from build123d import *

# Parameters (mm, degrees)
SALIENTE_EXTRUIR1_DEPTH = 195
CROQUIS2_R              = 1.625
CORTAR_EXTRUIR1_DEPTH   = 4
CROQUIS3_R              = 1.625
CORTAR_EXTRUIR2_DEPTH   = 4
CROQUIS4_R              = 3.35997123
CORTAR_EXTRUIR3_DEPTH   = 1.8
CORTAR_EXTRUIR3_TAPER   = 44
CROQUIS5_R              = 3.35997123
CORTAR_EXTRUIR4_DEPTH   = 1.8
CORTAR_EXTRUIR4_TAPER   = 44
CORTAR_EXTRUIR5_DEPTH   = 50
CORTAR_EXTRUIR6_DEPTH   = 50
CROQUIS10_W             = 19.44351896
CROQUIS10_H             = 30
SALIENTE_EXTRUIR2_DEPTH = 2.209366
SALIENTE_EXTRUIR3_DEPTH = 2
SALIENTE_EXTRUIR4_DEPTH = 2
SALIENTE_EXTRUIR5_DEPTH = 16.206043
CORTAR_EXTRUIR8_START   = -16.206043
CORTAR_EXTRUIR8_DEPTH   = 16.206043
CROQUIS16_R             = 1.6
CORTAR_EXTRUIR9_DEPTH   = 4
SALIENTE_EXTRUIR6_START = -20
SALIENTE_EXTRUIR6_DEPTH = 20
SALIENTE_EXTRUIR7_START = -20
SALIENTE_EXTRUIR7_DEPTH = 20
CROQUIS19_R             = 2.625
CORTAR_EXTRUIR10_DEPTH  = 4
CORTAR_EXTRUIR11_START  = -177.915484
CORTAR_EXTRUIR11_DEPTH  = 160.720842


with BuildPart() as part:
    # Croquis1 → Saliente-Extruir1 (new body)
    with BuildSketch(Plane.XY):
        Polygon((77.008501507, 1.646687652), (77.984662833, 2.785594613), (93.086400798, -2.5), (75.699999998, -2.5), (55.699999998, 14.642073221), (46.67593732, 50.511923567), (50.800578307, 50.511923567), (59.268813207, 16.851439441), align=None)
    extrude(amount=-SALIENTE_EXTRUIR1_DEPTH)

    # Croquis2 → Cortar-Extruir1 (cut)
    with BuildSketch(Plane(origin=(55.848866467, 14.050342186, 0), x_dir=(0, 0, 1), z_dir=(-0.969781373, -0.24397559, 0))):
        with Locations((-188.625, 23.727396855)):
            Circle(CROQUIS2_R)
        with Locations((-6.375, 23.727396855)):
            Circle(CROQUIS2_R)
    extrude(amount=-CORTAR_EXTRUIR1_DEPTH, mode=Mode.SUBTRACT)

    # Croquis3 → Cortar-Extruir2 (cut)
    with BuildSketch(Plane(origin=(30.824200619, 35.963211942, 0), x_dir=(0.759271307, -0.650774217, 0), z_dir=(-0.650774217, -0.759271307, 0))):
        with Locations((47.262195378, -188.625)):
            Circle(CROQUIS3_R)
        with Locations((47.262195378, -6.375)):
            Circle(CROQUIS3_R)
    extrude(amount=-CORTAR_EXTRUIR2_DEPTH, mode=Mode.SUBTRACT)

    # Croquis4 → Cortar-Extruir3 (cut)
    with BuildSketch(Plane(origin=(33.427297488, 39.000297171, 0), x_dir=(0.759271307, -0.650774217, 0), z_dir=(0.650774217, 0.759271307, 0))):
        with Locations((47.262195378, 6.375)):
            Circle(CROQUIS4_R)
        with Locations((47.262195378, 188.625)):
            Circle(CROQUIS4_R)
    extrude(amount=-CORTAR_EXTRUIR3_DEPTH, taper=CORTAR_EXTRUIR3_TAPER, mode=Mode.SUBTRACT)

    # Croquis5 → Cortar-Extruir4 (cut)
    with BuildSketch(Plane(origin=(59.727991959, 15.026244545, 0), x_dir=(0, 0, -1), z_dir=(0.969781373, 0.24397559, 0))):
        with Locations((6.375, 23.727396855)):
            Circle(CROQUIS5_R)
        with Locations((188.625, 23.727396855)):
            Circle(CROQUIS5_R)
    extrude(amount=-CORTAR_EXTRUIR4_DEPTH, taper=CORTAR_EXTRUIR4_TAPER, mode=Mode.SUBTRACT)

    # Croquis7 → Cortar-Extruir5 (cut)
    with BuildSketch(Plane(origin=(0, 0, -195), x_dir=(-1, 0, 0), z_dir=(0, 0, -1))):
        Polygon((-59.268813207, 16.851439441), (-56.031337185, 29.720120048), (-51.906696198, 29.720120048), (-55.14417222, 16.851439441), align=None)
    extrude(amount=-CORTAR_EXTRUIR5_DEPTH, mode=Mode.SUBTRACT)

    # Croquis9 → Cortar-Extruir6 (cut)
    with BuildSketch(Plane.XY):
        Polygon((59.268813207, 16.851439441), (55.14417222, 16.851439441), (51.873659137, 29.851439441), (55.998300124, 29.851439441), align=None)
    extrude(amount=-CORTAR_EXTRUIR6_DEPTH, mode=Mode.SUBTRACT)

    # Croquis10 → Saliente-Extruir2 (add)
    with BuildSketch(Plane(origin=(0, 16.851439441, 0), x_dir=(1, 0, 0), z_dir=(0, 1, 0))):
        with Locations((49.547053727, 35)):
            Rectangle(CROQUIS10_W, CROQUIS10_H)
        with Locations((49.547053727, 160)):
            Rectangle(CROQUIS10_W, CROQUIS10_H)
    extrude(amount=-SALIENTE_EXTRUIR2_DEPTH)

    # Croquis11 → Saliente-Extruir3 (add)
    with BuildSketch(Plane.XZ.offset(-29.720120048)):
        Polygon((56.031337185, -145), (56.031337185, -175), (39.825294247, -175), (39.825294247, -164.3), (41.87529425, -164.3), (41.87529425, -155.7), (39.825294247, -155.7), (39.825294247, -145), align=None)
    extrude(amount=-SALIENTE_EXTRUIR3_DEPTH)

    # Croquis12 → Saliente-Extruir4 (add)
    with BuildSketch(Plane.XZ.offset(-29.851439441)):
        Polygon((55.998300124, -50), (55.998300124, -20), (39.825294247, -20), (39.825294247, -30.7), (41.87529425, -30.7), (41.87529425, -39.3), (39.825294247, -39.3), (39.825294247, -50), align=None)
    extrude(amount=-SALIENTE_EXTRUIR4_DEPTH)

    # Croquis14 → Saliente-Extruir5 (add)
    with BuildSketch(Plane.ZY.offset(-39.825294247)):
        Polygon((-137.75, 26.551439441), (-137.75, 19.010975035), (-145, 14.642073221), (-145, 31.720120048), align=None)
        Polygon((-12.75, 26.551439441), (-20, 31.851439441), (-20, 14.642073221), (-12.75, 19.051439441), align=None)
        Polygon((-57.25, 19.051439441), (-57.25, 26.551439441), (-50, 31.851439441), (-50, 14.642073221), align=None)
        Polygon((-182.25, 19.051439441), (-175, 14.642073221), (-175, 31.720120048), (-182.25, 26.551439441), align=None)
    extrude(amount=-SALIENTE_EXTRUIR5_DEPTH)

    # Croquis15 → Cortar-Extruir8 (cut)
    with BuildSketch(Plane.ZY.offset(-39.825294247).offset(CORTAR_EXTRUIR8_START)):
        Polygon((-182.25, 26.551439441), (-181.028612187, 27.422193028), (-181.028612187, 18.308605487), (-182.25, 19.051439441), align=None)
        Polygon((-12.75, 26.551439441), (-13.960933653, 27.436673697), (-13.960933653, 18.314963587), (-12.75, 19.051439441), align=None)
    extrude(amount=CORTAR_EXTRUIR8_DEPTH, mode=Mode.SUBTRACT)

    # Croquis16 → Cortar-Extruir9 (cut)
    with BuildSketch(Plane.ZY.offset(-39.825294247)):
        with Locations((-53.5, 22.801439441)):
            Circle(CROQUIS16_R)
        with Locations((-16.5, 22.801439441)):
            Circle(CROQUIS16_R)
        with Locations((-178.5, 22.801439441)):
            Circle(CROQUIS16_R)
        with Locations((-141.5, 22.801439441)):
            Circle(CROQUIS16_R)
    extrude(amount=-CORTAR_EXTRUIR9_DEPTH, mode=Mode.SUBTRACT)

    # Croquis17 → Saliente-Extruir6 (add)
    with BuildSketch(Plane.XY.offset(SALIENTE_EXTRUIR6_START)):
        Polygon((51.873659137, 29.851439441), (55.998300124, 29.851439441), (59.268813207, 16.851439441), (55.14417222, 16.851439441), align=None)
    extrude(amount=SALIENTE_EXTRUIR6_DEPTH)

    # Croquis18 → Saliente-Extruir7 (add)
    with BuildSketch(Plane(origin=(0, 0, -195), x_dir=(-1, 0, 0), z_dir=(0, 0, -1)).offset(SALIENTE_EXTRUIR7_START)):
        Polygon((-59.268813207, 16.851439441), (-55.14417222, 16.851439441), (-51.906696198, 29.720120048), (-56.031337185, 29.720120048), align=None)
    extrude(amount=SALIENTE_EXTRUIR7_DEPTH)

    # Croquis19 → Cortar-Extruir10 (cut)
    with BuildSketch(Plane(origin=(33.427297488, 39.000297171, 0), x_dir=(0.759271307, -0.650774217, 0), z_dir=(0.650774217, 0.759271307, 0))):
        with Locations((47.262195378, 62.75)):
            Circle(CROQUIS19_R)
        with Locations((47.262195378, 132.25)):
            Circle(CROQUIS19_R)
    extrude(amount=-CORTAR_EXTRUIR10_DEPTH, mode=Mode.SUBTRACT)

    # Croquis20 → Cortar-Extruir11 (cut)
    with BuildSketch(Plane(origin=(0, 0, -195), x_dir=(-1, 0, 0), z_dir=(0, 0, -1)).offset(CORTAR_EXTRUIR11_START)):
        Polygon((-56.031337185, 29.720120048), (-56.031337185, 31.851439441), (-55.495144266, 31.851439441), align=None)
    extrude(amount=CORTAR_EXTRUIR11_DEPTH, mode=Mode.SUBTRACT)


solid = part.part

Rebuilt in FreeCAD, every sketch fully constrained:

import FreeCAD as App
import Part
import Sketcher

V = App.Vector

doc = App.newDocument("Part")
body = doc.addObject("PartDesign::Body", "Body")

# Sketch on XY plane
sketch1 = body.newObject("Sketcher::SketchObject", "Sketch")
sketch1.AttachmentSupport = (doc.getObject("XY_Plane"), [""])
sketch1.MapMode = "FlatFace"
sketch1.addGeometry([
    Part.LineSegment(V(77.984663, 2.785595, 0), V(77.008502, 1.646688, 0)),  # 0
    Part.LineSegment(V(77.008502, 1.646688, 0), V(59.268813, 16.851439, 0)),  # 1
    Part.LineSegment(V(59.268813, 16.851439, 0), V(50.800578, 50.511924, 0)),  # 2
    Part.LineSegment(V(50.800578, 50.511924, 0), V(46.675937, 50.511924, 0)),  # 3
    Part.LineSegment(V(46.675937, 50.511924, 0), V(55.7, 14.642073, 0)),  # 4
    Part.LineSegment(V(55.7, 14.642073, 0), V(75.7, -2.5, 0)),  # 5
    Part.LineSegment(V(75.7, -2.5, 0), V(93.086401, -2.5, 0)),  # 6
    Part.LineSegment(V(93.086401, -2.5, 0), V(77.984663, 2.785595, 0)),  # 7
], False)
sketch1.addConstraint([
    Sketcher.Constraint("Coincident", 0, 2, 1, 1),
    Sketcher.Constraint("Coincident", 1, 2, 2, 1),
    Sketcher.Constraint("Coincident", 2, 2, 3, 1),
    Sketcher.Constraint("Coincident", 3, 2, 4, 1),
    Sketcher.Constraint("Coincident", 4, 2, 5, 1),
    Sketcher.Constraint("Coincident", 5, 2, 6, 1),
    Sketcher.Constraint("Coincident", 6, 2, 7, 1),
    Sketcher.Constraint("Coincident", 7, 2, 0, 1),
    Sketcher.Constraint("Horizontal", 3),
    Sketcher.Constraint("Horizontal", 6),
    Sketcher.Constraint("Distance", 7, 16.0),
    Sketcher.Constraint("DistanceX", 4, 2, 5, 2, 20.0),
    Sketcher.Constraint("Distance", 0, 1.5),
    Sketcher.Constraint("DistanceX", -1, 1, 4, 2, 55.7),
    Sketcher.Constraint("DistanceY", 5, 2, -1, 1, 2.5),
    Sketcher.Constraint("DistanceX", 6, 1, 6, 2, 17.386401),
    Sketcher.Constraint("DistanceX", 3, 2, 3, 1, 4.124641),
    Sketcher.Constraint("DistanceX", -1, 1, 0, 2, 77.008502),
    Sketcher.Constraint("DistanceY", -1, 1, 1, 2, 16.851439),
    Sketcher.Constraint("DistanceX", -1, 1, 2, 2, 50.800578),
    Sketcher.Constraint("DistanceX", 1, 2, 0, 2, 17.739688),
    Sketcher.Constraint("DistanceY", 0, 2, 1, 2, 15.204752),
    Sketcher.Constraint("DistanceY", 4, 2, 2, 2, 35.86985),
    Sketcher.Constraint("DistanceY", 7, 2, 4, 2, 11.856479),
])
pad1 = body.newObject("PartDesign::Pad", "Pad")
pad1.Profile = sketch1
pad1.Length = 195
pad1.Reversed = True

# Sketch on an angled plane
sketch2 = body.newObject("Sketcher::SketchObject", "Sketch001")
sketch2.Placement = App.Placement(V(55.848866, 14.050342, 0), App.Rotation(V(0, 0, 1), V(-0.24397559, 0.969781373, 0), V(-0.969781373, -0.24397559, 0), "ZXY"))
sketch2.addGeometry([
    Part.Circle(V(-188.625, 23.727397, 0), V(0, 0, 1), 1.625),
    Part.Circle(V(-6.375, 23.727397, 0), V(0, 0, 1), 1.625),
], False)
sketch2.addConstraint([
    Sketcher.Constraint("Equal", 0, 1),
    Sketcher.Constraint("Horizontal", 0, 3, 1, 3),
    Sketcher.Constraint("Diameter", 0, 3.25),
    Sketcher.Constraint("DistanceX", 0, 3, 1, 3, 182.25),
    Sketcher.Constraint("DistanceX", 0, 3, -1, 1, 188.625),
    Sketcher.Constraint("DistanceY", -1, 1, 0, 3, 23.727397),
])
pocket1 = body.newObject("PartDesign::Pocket", "Pocket")
pocket1.Profile = sketch2
pocket1.Length = 4

# Sketch on an angled plane
sketch3 = body.newObject("Sketcher::SketchObject", "Sketch002")
sketch3.Placement = App.Placement(V(30.824201, 35.963212, 0), App.Rotation(V(0.759271307, -0.650774217, 0), V(0, 0, 0.999999999), V(-0.650774217, -0.759271307, 0), "ZXY"))
sketch3.addGeometry([
    Part.Circle(V(47.262195, -188.625, 0), V(0, 0, 1), 1.625),
    Part.Circle(V(47.262195, -6.375, 0), V(0, 0, 1), 1.625),
], False)
sketch3.addConstraint([
    Sketcher.Constraint("Equal", 0, 1),
    Sketcher.Constraint("Vertical", 0, 3, 1, 3),
    Sketcher.Constraint("Diameter", 0, 3.25),
    Sketcher.Constraint("DistanceY", 0, 3, 1, 3, 182.25),
    Sketcher.Constraint("DistanceY", 0, 3, -1, 1, 188.625),
    Sketcher.Constraint("DistanceX", -1, 1, 0, 3, 47.262195),
])
pocket2 = body.newObject("PartDesign::Pocket", "Pocket001")
pocket2.Profile = sketch3
pocket2.Length = 4

# Sketch on an angled plane
sketch4 = body.newObject("Sketcher::SketchObject", "Sketch003")
sketch4.Placement = App.Placement(V(33.427297, 39.000297, 0), App.Rotation(V(0.759271307, -0.650774217, 0), V(0, 0, -0.999999999), V(0.650774217, 0.759271307, 0), "ZXY"))
sketch4.addGeometry([
    Part.Circle(V(47.262195, 6.375, 0), V(0, 0, 1), 3.359971),
    Part.Circle(V(47.262195, 188.625, 0), V(0, 0, 1), 3.359971),
], False)
sketch4.addConstraint([
    Sketcher.Constraint("Equal", 0, 1),
    Sketcher.Constraint("Vertical", 0, 3, 1, 3),
    Sketcher.Constraint("DistanceY", 0, 3, 1, 3, 182.25),
    Sketcher.Constraint("Diameter", 0, 6.719942),
    Sketcher.Constraint("DistanceY", -1, 1, 0, 3, 6.375),
    Sketcher.Constraint("DistanceX", -1, 1, 0, 3, 47.262195),
])
pocket3 = body.newObject("PartDesign::Pocket", "Pocket002")
pocket3.Profile = sketch4
pocket3.Length = 1.8
pocket3.TaperAngle = -44

# Sketch on an angled plane
sketch5 = body.newObject("Sketcher::SketchObject", "Sketch004")
sketch5.Placement = App.Placement(V(59.727992, 15.026245, 0), App.Rotation(V(0, 0, -1), V(-0.24397559, 0.969781373, 0), V(0.969781373, 0.24397559, 0), "ZXY"))
sketch5.addGeometry([
    Part.Circle(V(6.375, 23.727397, 0), V(0, 0, 1), 3.359971),
    Part.Circle(V(188.625, 23.727397, 0), V(0, 0, 1), 3.359971),
], False)
sketch5.addConstraint([
    Sketcher.Constraint("Equal", 0, 1),
    Sketcher.Constraint("Horizontal", 0, 3, 1, 3),
    Sketcher.Constraint("DistanceX", 0, 3, 1, 3, 182.25),
    Sketcher.Constraint("Diameter", 0, 6.719942),
    Sketcher.Constraint("DistanceX", -1, 1, 0, 3, 6.375),
    Sketcher.Constraint("DistanceY", -1, 1, 0, 3, 23.727397),
])
pocket4 = body.newObject("PartDesign::Pocket", "Pocket003")
pocket4.Profile = sketch5
pocket4.Length = 1.8
pocket4.TaperAngle = -44

# Sketch on XY plane
sketch6 = body.newObject("Sketcher::SketchObject", "Sketch005")
sketch6.AttachmentSupport = (doc.getObject("XY_Plane"), [""])
sketch6.MapMode = "FlatFace"
sketch6.AttachmentOffset = App.Placement(V(0, 0, -195), App.Rotation())
sketch6.addGeometry([
    Part.LineSegment(V(56.031337, 29.72012, 0), V(59.268813, 16.851439, 0)),
    Part.LineSegment(V(59.268813, 16.851439, 0), V(55.144172, 16.851439, 0)),
    Part.LineSegment(V(55.144172, 16.851439, 0), V(51.906696, 29.72012, 0)),
    Part.LineSegment(V(51.906696, 29.72012, 0), V(56.031337, 29.72012, 0)),
], False)
sketch6.addConstraint([
    Sketcher.Constraint("Coincident", 0, 2, 1, 1),
    Sketcher.Constraint("Coincident", 1, 2, 2, 1),
    Sketcher.Constraint("Coincident", 2, 2, 3, 1),
    Sketcher.Constraint("Coincident", 3, 2, 0, 1),
    Sketcher.Constraint("Horizontal", 1),
    Sketcher.Constraint("Horizontal", 3),
    Sketcher.Constraint("Parallel", 0, 2),
    Sketcher.Constraint("DistanceX", 1, 2, 1, 1, 4.124641),
    Sketcher.Constraint("Distance", 0, 13.269672),
    Sketcher.Constraint("DistanceY", -1, 1, 0, 2, 16.851439),
    Sketcher.Constraint("DistanceY", -1, 1, 2, 2, 29.72012),
    Sketcher.Constraint("DistanceX", -1, 1, 0, 2, 59.268813),
])
pocket5 = body.newObject("PartDesign::Pocket", "Pocket004")
pocket5.Profile = sketch6
pocket5.Length = 50
pocket5.Reversed = True

# Sketch on XY plane
sketch7 = body.newObject("Sketcher::SketchObject", "Sketch006")
sketch7.AttachmentSupport = (doc.getObject("XY_Plane"), [""])
sketch7.MapMode = "FlatFace"
sketch7.addGeometry([
    Part.LineSegment(V(55.144172, 16.851439, 0), V(59.268813, 16.851439, 0)),
    Part.LineSegment(V(59.268813, 16.851439, 0), V(55.9983, 29.851439, 0)),
    Part.LineSegment(V(55.9983, 29.851439, 0), V(51.873659, 29.851439, 0)),
    Part.LineSegment(V(51.873659, 29.851439, 0), V(55.144172, 16.851439, 0)),
], False)
sketch7.addConstraint([
    Sketcher.Constraint("Coincident", 0, 2, 1, 1),
    Sketcher.Constraint("Coincident", 1, 2, 2, 1),
    Sketcher.Constraint("Coincident", 2, 2, 3, 1),
    Sketcher.Constraint("Coincident", 3, 2, 0, 1),
    Sketcher.Constraint("Horizontal", 0),
    Sketcher.Constraint("Horizontal", 2),
    Sketcher.Constraint("Parallel", 1, 3),
    Sketcher.Constraint("DistanceY", 0, 2, 1, 2, 13.0),
    Sketcher.Constraint("DistanceX", 0, 1, 0, 2, 4.124641),
    Sketcher.Constraint("DistanceX", -1, 1, 1, 2, 55.9983),
    Sketcher.Constraint("DistanceY", -1, 1, 0, 2, 16.851439),
    Sketcher.Constraint("Distance", 1, 13.405083),
])
pocket6 = body.newObject("PartDesign::Pocket", "Pocket005")
pocket6.Profile = sketch7
pocket6.Length = 50

# Sketch on XZ plane
sketch8 = body.newObject("Sketcher::SketchObject", "Sketch007")
sketch8.AttachmentSupport = (doc.getObject("XZ_Plane"), [""])
sketch8.MapMode = "FlatFace"
sketch8.AttachmentOffset = App.Placement(V(0, 0, -16.851439), App.Rotation())
sketch8.addGeometry([
    Part.LineSegment(V(39.825294, -50, 0), V(39.825294, -20, 0)),  # 0
    Part.LineSegment(V(39.825294, -20, 0), V(59.268813, -20, 0)),  # 1
    Part.LineSegment(V(59.268813, -20, 0), V(59.268813, -50, 0)),  # 2
    Part.LineSegment(V(59.268813, -50, 0), V(39.825294, -50, 0)),  # 3
    Part.LineSegment(V(39.825294, -175, 0), V(39.825294, -145, 0)),  # 4
    Part.LineSegment(V(39.825294, -145, 0), V(59.268813, -145, 0)),  # 5
    Part.LineSegment(V(59.268813, -145, 0), V(59.268813, -175, 0)),  # 6
    Part.LineSegment(V(59.268813, -175, 0), V(39.825294, -175, 0)),  # 7
], False)
sketch8.addConstraint([
    Sketcher.Constraint("Coincident", 0, 2, 1, 1),
    Sketcher.Constraint("Coincident", 1, 2, 2, 1),
    Sketcher.Constraint("Coincident", 2, 2, 3, 1),
    Sketcher.Constraint("Coincident", 3, 2, 0, 1),
    Sketcher.Constraint("Coincident", 4, 2, 5, 1),
    Sketcher.Constraint("Coincident", 5, 2, 6, 1),
    Sketcher.Constraint("Coincident", 6, 2, 7, 1),
    Sketcher.Constraint("Coincident", 7, 2, 4, 1),
    Sketcher.Constraint("Vertical", 0),
    Sketcher.Constraint("Horizontal", 1),
    Sketcher.Constraint("Vertical", 2),
    Sketcher.Constraint("Horizontal", 3),
    Sketcher.Constraint("Vertical", 4),
    Sketcher.Constraint("Horizontal", 5),
    Sketcher.Constraint("Vertical", 6),
    Sketcher.Constraint("Horizontal", 7),
    Sketcher.Constraint("Vertical", 3, 2, 4, 2),
    Sketcher.Constraint("Vertical", 2, 2, 5, 2),
    Sketcher.Constraint("Equal", 2, 4),
    Sketcher.Constraint("DistanceY", 0, 1, 0, 2, 30.0),
    Sketcher.Constraint("DistanceY", 0, 2, -1, 1, 20.0),
    Sketcher.Constraint("DistanceY", 4, 2, -1, 1, 145.0),
    Sketcher.Constraint("DistanceX", 1, 1, 1, 2, 19.443519),
    Sketcher.Constraint("DistanceX", -1, 1, 0, 2, 39.825294),
])
pad2 = body.newObject("PartDesign::Pad", "Pad001")
pad2.Profile = sketch8
pad2.Length = 2.209366

# Sketch on XZ plane
sketch9 = body.newObject("Sketcher::SketchObject", "Sketch008")
sketch9.AttachmentSupport = (doc.getObject("XZ_Plane"), [""])
sketch9.MapMode = "FlatFace"
sketch9.AttachmentOffset = App.Placement(V(0, 0, -29.72012), App.Rotation())
sketch9.addGeometry([
    Part.LineSegment(V(56.031337, -175, 0), V(56.031337, -145, 0)),  # 0
    Part.LineSegment(V(56.031337, -145, 0), V(39.825294, -145, 0)),  # 1
    Part.LineSegment(V(39.825294, -145, 0), V(39.825294, -155.7, 0)),  # 2
    Part.LineSegment(V(39.825294, -155.7, 0), V(41.875294, -155.7, 0)),  # 3
    Part.LineSegment(V(41.875294, -155.7, 0), V(41.875294, -164.3, 0)),  # 4
    Part.LineSegment(V(41.875294, -164.3, 0), V(39.825294, -164.3, 0)),  # 5
    Part.LineSegment(V(39.825294, -164.3, 0), V(39.825294, -175, 0)),  # 6
    Part.LineSegment(V(39.825294, -175, 0), V(56.031337, -175, 0)),  # 7
], False)
sketch9.addConstraint([
    Sketcher.Constraint("Coincident", 0, 2, 1, 1),
    Sketcher.Constraint("Coincident", 1, 2, 2, 1),
    Sketcher.Constraint("Coincident", 2, 2, 3, 1),
    Sketcher.Constraint("Coincident", 3, 2, 4, 1),
    Sketcher.Constraint("Coincident", 4, 2, 5, 1),
    Sketcher.Constraint("Coincident", 5, 2, 6, 1),
    Sketcher.Constraint("Coincident", 6, 2, 7, 1),
    Sketcher.Constraint("Coincident", 7, 2, 0, 1),
    Sketcher.Constraint("Vertical", 0),
    Sketcher.Constraint("Horizontal", 1),
    Sketcher.Constraint("Vertical", 2),
    Sketcher.Constraint("Horizontal", 3),
    Sketcher.Constraint("Vertical", 4),
    Sketcher.Constraint("Horizontal", 5),
    Sketcher.Constraint("Vertical", 6),
    Sketcher.Constraint("Horizontal", 7),
    Sketcher.Constraint("Vertical", 2, 2, 5, 2),
    Sketcher.Constraint("Equal", 2, 6),
    Sketcher.Constraint("DistanceY", 0, 1, 0, 2, 30.0),
    Sketcher.Constraint("DistanceY", 2, 2, 2, 1, 10.7),
    Sketcher.Constraint("DistanceY", 0, 2, -1, 1, 145.0),
    Sketcher.Constraint("DistanceX", 3, 1, 3, 2, 2.05),
    Sketcher.Constraint("DistanceX", 1, 2, 1, 1, 16.206043),
    Sketcher.Constraint("DistanceX", -1, 1, 0, 2, 56.031337),
])
pad3 = body.newObject("PartDesign::Pad", "Pad002")
pad3.Profile = sketch9
pad3.Length = 2
pad3.Reversed = True

# Sketch on XZ plane
sketch10 = body.newObject("Sketcher::SketchObject", "Sketch009")
sketch10.AttachmentSupport = (doc.getObject("XZ_Plane"), [""])
sketch10.MapMode = "FlatFace"
sketch10.AttachmentOffset = App.Placement(V(0, 0, -29.851439), App.Rotation())
sketch10.addGeometry([
    Part.LineSegment(V(55.9983, -50, 0), V(55.9983, -20, 0)),  # 0
    Part.LineSegment(V(55.9983, -20, 0), V(39.825294, -20, 0)),  # 1
    Part.LineSegment(V(39.825294, -20, 0), V(39.825294, -30.7, 0)),  # 2
    Part.LineSegment(V(39.825294, -30.7, 0), V(41.875294, -30.7, 0)),  # 3
    Part.LineSegment(V(41.875294, -30.7, 0), V(41.875294, -39.3, 0)),  # 4
    Part.LineSegment(V(41.875294, -39.3, 0), V(39.825294, -39.3, 0)),  # 5
    Part.LineSegment(V(39.825294, -39.3, 0), V(39.825294, -50, 0)),  # 6
    Part.LineSegment(V(39.825294, -50, 0), V(55.9983, -50, 0)),  # 7
], False)
sketch10.addConstraint([
    Sketcher.Constraint("Coincident", 0, 2, 1, 1),
    Sketcher.Constraint("Coincident", 1, 2, 2, 1),
    Sketcher.Constraint("Coincident", 2, 2, 3, 1),
    Sketcher.Constraint("Coincident", 3, 2, 4, 1),
    Sketcher.Constraint("Coincident", 4, 2, 5, 1),
    Sketcher.Constraint("Coincident", 5, 2, 6, 1),
    Sketcher.Constraint("Coincident", 6, 2, 7, 1),
    Sketcher.Constraint("Coincident", 7, 2, 0, 1),
    Sketcher.Constraint("Vertical", 0),
    Sketcher.Constraint("Horizontal", 1),
    Sketcher.Constraint("Vertical", 2),
    Sketcher.Constraint("Horizontal", 3),
    Sketcher.Constraint("Vertical", 4),
    Sketcher.Constraint("Horizontal", 5),
    Sketcher.Constraint("Vertical", 6),
    Sketcher.Constraint("Horizontal", 7),
    Sketcher.Constraint("Vertical", 2, 2, 5, 2),
    Sketcher.Constraint("Equal", 2, 6),
    Sketcher.Constraint("DistanceY", 0, 1, 0, 2, 30.0),
    Sketcher.Constraint("DistanceY", 2, 2, 2, 1, 10.7),
    Sketcher.Constraint("DistanceY", 0, 2, -1, 1, 20.0),
    Sketcher.Constraint("DistanceX", 3, 1, 3, 2, 2.05),
    Sketcher.Constraint("DistanceX", -1, 1, 0, 2, 55.9983),
    Sketcher.Constraint("DistanceX", 1, 2, 1, 1, 16.173006),
])
pad4 = body.newObject("PartDesign::Pad", "Pad003")
pad4.Profile = sketch10
pad4.Length = 2
pad4.Reversed = True

# Sketch on YZ plane
sketch11 = body.newObject("Sketcher::SketchObject", "Sketch010")
sketch11.AttachmentSupport = (doc.getObject("YZ_Plane"), [""])
sketch11.MapMode = "FlatFace"
sketch11.AttachmentOffset = App.Placement(V(0, 0, 39.825294), App.Rotation())
sketch11.addGeometry([
    Part.LineSegment(V(19.010975, -137.75, 0), V(26.551439, -137.75, 0)),  # 0
    Part.LineSegment(V(26.551439, -137.75, 0), V(31.72012, -145, 0)),  # 1
    Part.LineSegment(V(31.72012, -145, 0), V(14.642073, -145, 0)),  # 2
    Part.LineSegment(V(14.642073, -145, 0), V(19.010975, -137.75, 0)),  # 3
    Part.LineSegment(V(26.551439, -12.75, 0), V(31.851439, -20, 0)),  # 4
    Part.LineSegment(V(31.851439, -20, 0), V(14.642073, -20, 0)),  # 5
    Part.LineSegment(V(14.642073, -20, 0), V(19.051439, -12.75, 0)),  # 6
    Part.LineSegment(V(19.051439, -12.75, 0), V(26.551439, -12.75, 0)),  # 7
    Part.LineSegment(V(26.551439, -57.25, 0), V(19.051439, -57.25, 0)),  # 8
    Part.LineSegment(V(19.051439, -57.25, 0), V(14.642073, -50, 0)),  # 9
    Part.LineSegment(V(14.642073, -50, 0), V(31.851439, -50, 0)),  # 10
    Part.LineSegment(V(31.851439, -50, 0), V(26.551439, -57.25, 0)),  # 11
    Part.LineSegment(V(19.051439, -182.25, 0), V(14.642073, -175, 0)),  # 12
    Part.LineSegment(V(14.642073, -175, 0), V(31.72012, -175, 0)),  # 13
    Part.LineSegment(V(31.72012, -175, 0), V(26.551439, -182.25, 0)),  # 14
    Part.LineSegment(V(26.551439, -182.25, 0), V(19.051439, -182.25, 0)),  # 15
], False)
sketch11.addConstraint([
    Sketcher.Constraint("Coincident", 0, 2, 1, 1),
    Sketcher.Constraint("Coincident", 1, 2, 2, 1),
    Sketcher.Constraint("Coincident", 2, 2, 3, 1),
    Sketcher.Constraint("Coincident", 3, 2, 0, 1),
    Sketcher.Constraint("Coincident", 4, 2, 5, 1),
    Sketcher.Constraint("Coincident", 5, 2, 6, 1),
    Sketcher.Constraint("Coincident", 6, 2, 7, 1),
    Sketcher.Constraint("Coincident", 7, 2, 4, 1),
    Sketcher.Constraint("Coincident", 8, 2, 9, 1),
    Sketcher.Constraint("Coincident", 9, 2, 10, 1),
    Sketcher.Constraint("Coincident", 10, 2, 11, 1),
    Sketcher.Constraint("Coincident", 11, 2, 8, 1),
    Sketcher.Constraint("Coincident", 12, 2, 13, 1),
    Sketcher.Constraint("Coincident", 13, 2, 14, 1),
    Sketcher.Constraint("Coincident", 14, 2, 15, 1),
    Sketcher.Constraint("Coincident", 15, 2, 12, 1),
    Sketcher.Constraint("Horizontal", 0),
    Sketcher.Constraint("Horizontal", 2),
    Sketcher.Constraint("Horizontal", 5),
    Sketcher.Constraint("Horizontal", 7),
    Sketcher.Constraint("Horizontal", 8),
    Sketcher.Constraint("Horizontal", 10),
    Sketcher.Constraint("Horizontal", 13),
    Sketcher.Constraint("Horizontal", 15),
    Sketcher.Constraint("Parallel", 9, 12),
    Sketcher.Constraint("Vertical", 2, 2, 5, 2),
    Sketcher.Constraint("Vertical", 0, 2, 7, 2),
    Sketcher.Constraint("Vertical", 6, 2, 8, 2),
    Sketcher.Constraint("Vertical", 5, 2, 9, 2),
    Sketcher.Constraint("Vertical", 4, 2, 10, 2),
    Sketcher.Constraint("Vertical", 7, 2, 11, 2),
    Sketcher.Constraint("Vertical", 9, 2, 12, 2),
    Sketcher.Constraint("Vertical", 1, 2, 13, 2),
    Sketcher.Constraint("Vertical", 11, 2, 14, 2),
    Sketcher.Constraint("Vertical", 8, 2, 15, 2),
    Sketcher.Constraint("Equal", 6, 9),
    Sketcher.Constraint("Equal", 1, 14),
    Sketcher.Constraint("DistanceX", 7, 1, 7, 2, 7.5),
    Sketcher.Constraint("DistanceY", 1, 2, -1, 1, 145.0),
    Sketcher.Constraint("DistanceY", 4, 2, -1, 1, 20.0),
    Sketcher.Constraint("DistanceY", 9, 2, -1, 1, 50.0),
    Sketcher.Constraint("DistanceY", 12, 2, -1, 1, 175.0),
    Sketcher.Constraint("DistanceX", 0, 2, 4, 2, 5.3),
    Sketcher.Constraint("DistanceY", 8, 2, 6, 2, 44.5),
    Sketcher.Constraint("DistanceX", 2, 2, 3, 2, 4.368902),
    Sketcher.Constraint("DistanceX", 0, 1, 0, 2, 7.540464),
    Sketcher.Constraint("DistanceX", 2, 2, 2, 1, 17.078047),
    Sketcher.Constraint("DistanceX", -1, 1, 0, 2, 26.551439),
])
pad5 = body.newObject("PartDesign::Pad", "Pad004")
pad5.Profile = sketch11
pad5.Length = 16.206043

# Sketch on YZ plane
sketch12 = body.newObject("Sketcher::SketchObject", "Sketch011")
sketch12.AttachmentSupport = (doc.getObject("YZ_Plane"), [""])
sketch12.MapMode = "FlatFace"
sketch12.AttachmentOffset = App.Placement(V(0, 0, 56.031337), App.Rotation())
sketch12.addGeometry([
    Part.LineSegment(V(27.422193, -181.028612, 0), V(26.551439, -182.25, 0)),  # 0
    Part.LineSegment(V(26.551439, -182.25, 0), V(19.051439, -182.25, 0)),  # 1
    Part.LineSegment(V(19.051439, -182.25, 0), V(18.308605, -181.028612, 0)),  # 2
    Part.LineSegment(V(18.308605, -181.028612, 0), V(27.422193, -181.028612, 0)),  # 3
    Part.LineSegment(V(26.551439, -12.75, 0), V(27.436674, -13.960934, 0)),  # 4
    Part.LineSegment(V(27.436674, -13.960934, 0), V(18.314964, -13.960934, 0)),  # 5
    Part.LineSegment(V(18.314964, -13.960934, 0), V(19.051439, -12.75, 0)),  # 6
    Part.LineSegment(V(19.051439, -12.75, 0), V(26.551439, -12.75, 0)),  # 7
], False)
sketch12.addConstraint([
    Sketcher.Constraint("Coincident", 0, 2, 1, 1),
    Sketcher.Constraint("Coincident", 1, 2, 2, 1),
    Sketcher.Constraint("Coincident", 2, 2, 3, 1),
    Sketcher.Constraint("Coincident", 3, 2, 0, 1),
    Sketcher.Constraint("Coincident", 4, 2, 5, 1),
    Sketcher.Constraint("Coincident", 5, 2, 6, 1),
    Sketcher.Constraint("Coincident", 6, 2, 7, 1),
    Sketcher.Constraint("Coincident", 7, 2, 4, 1),
    Sketcher.Constraint("Horizontal", 1),
    Sketcher.Constraint("Horizontal", 3),
    Sketcher.Constraint("Horizontal", 5),
    Sketcher.Constraint("Horizontal", 7),
    Sketcher.Constraint("Vertical", 1, 2, 6, 2),
    Sketcher.Constraint("Vertical", 0, 2, 7, 2),
    Sketcher.Constraint("Equal", 0, 4),
    Sketcher.Constraint("DistanceX", 1, 2, 1, 1, 7.5),
    Sketcher.Constraint("Distance", 0, 1.5),
    Sketcher.Constraint("DistanceY", 1, 2, 6, 2, 169.5),
    Sketcher.Constraint("DistanceY", 0, 2, -1, 1, 182.25),
    Sketcher.Constraint("DistanceX", 5, 2, 5, 1, 9.12171),
    Sketcher.Constraint("DistanceX", 3, 1, 3, 2, 9.113588),
    Sketcher.Constraint("DistanceX", -1, 1, 0, 2, 26.551439),
    Sketcher.Constraint("DistanceX", 3, 2, 4, 2, 0.014481),
    Sketcher.Constraint("DistanceY", 3, 2, 4, 2, 167.067679),
])
pocket7 = body.newObject("PartDesign::Pocket", "Pocket006")
pocket7.Profile = sketch12
pocket7.Length = 16.206043

# Sketch on YZ plane
sketch13 = body.newObject("Sketcher::SketchObject", "Sketch012")
sketch13.AttachmentSupport = (doc.getObject("YZ_Plane"), [""])
sketch13.MapMode = "FlatFace"
sketch13.AttachmentOffset = App.Placement(V(0, 0, 39.825294), App.Rotation())
sketch13.addGeometry([
    Part.Circle(V(22.801439, -53.5, 0), V(0, 0, 1), 1.6),
    Part.Circle(V(22.801439, -16.5, 0), V(0, 0, 1), 1.6),
    Part.Circle(V(22.801439, -178.5, 0), V(0, 0, 1), 1.6),
    Part.Circle(V(22.801439, -141.5, 0), V(0, 0, 1), 1.6),
], False)
sketch13.addConstraint([
    Sketcher.Constraint("Equal", 0, 1),
    Sketcher.Constraint("Equal", 1, 2),
    Sketcher.Constraint("Equal", 2, 3),
    Sketcher.Constraint("Vertical", 0, 3, 1, 3),
    Sketcher.Constraint("Vertical", 1, 3, 2, 3),
    Sketcher.Constraint("Vertical", 2, 3, 3, 3),
    Sketcher.Constraint("Diameter", 0, 3.2),
    Sketcher.Constraint("DistanceY", 0, 3, 1, 3, 37.0),
    Sketcher.Constraint("DistanceY", 2, 3, 0, 3, 125.0),
    Sketcher.Constraint("DistanceY", 2, 3, 3, 3, 37.0),
    Sketcher.Constraint("DistanceY", 0, 3, -1, 1, 53.5),
    Sketcher.Constraint("DistanceX", -1, 1, 0, 3, 22.801439),
])
pocket8 = body.newObject("PartDesign::Pocket", "Pocket007")
pocket8.Profile = sketch13
pocket8.Length = 4
pocket8.Reversed = True

# Sketch on XY plane
sketch14 = body.newObject("Sketcher::SketchObject", "Sketch013")
sketch14.AttachmentSupport = (doc.getObject("XY_Plane"), [""])
sketch14.MapMode = "FlatFace"
sketch14.AttachmentOffset = App.Placement(V(0, 0, -20), App.Rotation())
sketch14.addGeometry([
    Part.LineSegment(V(55.9983, 29.851439, 0), V(51.873659, 29.851439, 0)),
    Part.LineSegment(V(51.873659, 29.851439, 0), V(55.144172, 16.851439, 0)),
    Part.LineSegment(V(55.144172, 16.851439, 0), V(59.268813, 16.851439, 0)),
    Part.LineSegment(V(59.268813, 16.851439, 0), V(55.9983, 29.851439, 0)),
], False)
sketch14.addConstraint([
    Sketcher.Constraint("Coincident", 0, 2, 1, 1),
    Sketcher.Constraint("Coincident", 1, 2, 2, 1),
    Sketcher.Constraint("Coincident", 2, 2, 3, 1),
    Sketcher.Constraint("Coincident", 3, 2, 0, 1),
    Sketcher.Constraint("Horizontal", 0),
    Sketcher.Constraint("Horizontal", 2),
    Sketcher.Constraint("Parallel", 1, 3),
    Sketcher.Constraint("DistanceY", 1, 2, 0, 2, 13.0),
    Sketcher.Constraint("DistanceX", 0, 2, 0, 1, 4.124641),
    Sketcher.Constraint("DistanceX", -1, 1, 3, 2, 55.9983),
    Sketcher.Constraint("DistanceY", -1, 1, 0, 2, 29.851439),
    Sketcher.Constraint("Distance", 1, 13.405083),
])
pad6 = body.newObject("PartDesign::Pad", "Pad005")
pad6.Profile = sketch14
pad6.Length = 20

# Sketch on XY plane
sketch15 = body.newObject("Sketcher::SketchObject", "Sketch014")
sketch15.AttachmentSupport = (doc.getObject("XY_Plane"), [""])
sketch15.MapMode = "FlatFace"
sketch15.AttachmentOffset = App.Placement(V(0, 0, -175), App.Rotation())
sketch15.addGeometry([
    Part.LineSegment(V(59.268813, 16.851439, 0), V(55.144172, 16.851439, 0)),
    Part.LineSegment(V(55.144172, 16.851439, 0), V(51.906696, 29.72012, 0)),
    Part.LineSegment(V(51.906696, 29.72012, 0), V(56.031337, 29.72012, 0)),
    Part.LineSegment(V(56.031337, 29.72012, 0), V(59.268813, 16.851439, 0)),
], False)
sketch15.addConstraint([
    Sketcher.Constraint("Coincident", 0, 2, 1, 1),
    Sketcher.Constraint("Coincident", 1, 2, 2, 1),
    Sketcher.Constraint("Coincident", 2, 2, 3, 1),
    Sketcher.Constraint("Coincident", 3, 2, 0, 1),
    Sketcher.Constraint("Horizontal", 0),
    Sketcher.Constraint("Horizontal", 2),
    Sketcher.Constraint("Parallel", 1, 3),
    Sketcher.Constraint("DistanceX", 0, 2, 0, 1, 4.124641),
    Sketcher.Constraint("Distance", 1, 13.269672),
    Sketcher.Constraint("DistanceY", -1, 1, 0, 2, 16.851439),
    Sketcher.Constraint("DistanceY", -1, 1, 1, 2, 29.72012),
    Sketcher.Constraint("DistanceX", -1, 1, 0, 2, 55.144172),
])
pad7 = body.newObject("PartDesign::Pad", "Pad006")
pad7.Profile = sketch15
pad7.Length = 20
pad7.Reversed = True

# Sketch on an angled plane
sketch16 = body.newObject("Sketcher::SketchObject", "Sketch015")
sketch16.Placement = App.Placement(V(33.427297, 39.000297, 0), App.Rotation(V(0.759271307, -0.650774217, 0), V(0, 0, -0.999999999), V(0.650774217, 0.759271307, 0), "ZXY"))
sketch16.addGeometry([
    Part.Circle(V(47.262195, 62.75, 0), V(0, 0, 1), 2.625),
    Part.Circle(V(47.262195, 132.25, 0), V(0, 0, 1), 2.625),
], False)
sketch16.addConstraint([
    Sketcher.Constraint("Equal", 0, 1),
    Sketcher.Constraint("Vertical", 0, 3, 1, 3),
    Sketcher.Constraint("Diameter", 0, 5.25),
    Sketcher.Constraint("DistanceY", 0, 3, 1, 3, 69.5),
    Sketcher.Constraint("DistanceY", -1, 1, 0, 3, 62.75),
    Sketcher.Constraint("DistanceX", -1, 1, 0, 3, 47.262195),
])
pocket9 = body.newObject("PartDesign::Pocket", "Pocket008")
pocket9.Profile = sketch16
pocket9.Length = 4

# Sketch on XY plane
sketch17 = body.newObject("Sketcher::SketchObject", "Sketch016")
sketch17.AttachmentSupport = (doc.getObject("XY_Plane"), [""])
sketch17.MapMode = "FlatFace"
sketch17.AttachmentOffset = App.Placement(V(0, 0, -17.084516), App.Rotation())
sketch17.addGeometry([
    Part.LineSegment(V(56.031337, 31.851439, 0), V(56.031337, 29.72012, 0)),
    Part.LineSegment(V(56.031337, 29.72012, 0), V(55.495144, 31.851439, 0)),
    Part.LineSegment(V(55.495144, 31.851439, 0), V(56.031337, 31.851439, 0)),
], False)
sketch17.addConstraint([
    Sketcher.Constraint("Coincident", 0, 2, 1, 1),
    Sketcher.Constraint("Coincident", 1, 2, 2, 1),
    Sketcher.Constraint("Coincident", 2, 2, 0, 1),
    Sketcher.Constraint("Vertical", 0),
    Sketcher.Constraint("Horizontal", 2),
    Sketcher.Constraint("DistanceY", 0, 2, 0, 1, 2.131319),
    Sketcher.Constraint("Distance", 1, 2.197732),
    Sketcher.Constraint("DistanceY", -1, 1, 0, 2, 29.72012),
    Sketcher.Constraint("DistanceX", -1, 1, 0, 2, 56.031337),
])
pocket10 = body.newObject("PartDesign::Pocket", "Pocket009")
pocket10.Profile = sketch17
pocket10.Length = 160.720842

doc.recompute()
